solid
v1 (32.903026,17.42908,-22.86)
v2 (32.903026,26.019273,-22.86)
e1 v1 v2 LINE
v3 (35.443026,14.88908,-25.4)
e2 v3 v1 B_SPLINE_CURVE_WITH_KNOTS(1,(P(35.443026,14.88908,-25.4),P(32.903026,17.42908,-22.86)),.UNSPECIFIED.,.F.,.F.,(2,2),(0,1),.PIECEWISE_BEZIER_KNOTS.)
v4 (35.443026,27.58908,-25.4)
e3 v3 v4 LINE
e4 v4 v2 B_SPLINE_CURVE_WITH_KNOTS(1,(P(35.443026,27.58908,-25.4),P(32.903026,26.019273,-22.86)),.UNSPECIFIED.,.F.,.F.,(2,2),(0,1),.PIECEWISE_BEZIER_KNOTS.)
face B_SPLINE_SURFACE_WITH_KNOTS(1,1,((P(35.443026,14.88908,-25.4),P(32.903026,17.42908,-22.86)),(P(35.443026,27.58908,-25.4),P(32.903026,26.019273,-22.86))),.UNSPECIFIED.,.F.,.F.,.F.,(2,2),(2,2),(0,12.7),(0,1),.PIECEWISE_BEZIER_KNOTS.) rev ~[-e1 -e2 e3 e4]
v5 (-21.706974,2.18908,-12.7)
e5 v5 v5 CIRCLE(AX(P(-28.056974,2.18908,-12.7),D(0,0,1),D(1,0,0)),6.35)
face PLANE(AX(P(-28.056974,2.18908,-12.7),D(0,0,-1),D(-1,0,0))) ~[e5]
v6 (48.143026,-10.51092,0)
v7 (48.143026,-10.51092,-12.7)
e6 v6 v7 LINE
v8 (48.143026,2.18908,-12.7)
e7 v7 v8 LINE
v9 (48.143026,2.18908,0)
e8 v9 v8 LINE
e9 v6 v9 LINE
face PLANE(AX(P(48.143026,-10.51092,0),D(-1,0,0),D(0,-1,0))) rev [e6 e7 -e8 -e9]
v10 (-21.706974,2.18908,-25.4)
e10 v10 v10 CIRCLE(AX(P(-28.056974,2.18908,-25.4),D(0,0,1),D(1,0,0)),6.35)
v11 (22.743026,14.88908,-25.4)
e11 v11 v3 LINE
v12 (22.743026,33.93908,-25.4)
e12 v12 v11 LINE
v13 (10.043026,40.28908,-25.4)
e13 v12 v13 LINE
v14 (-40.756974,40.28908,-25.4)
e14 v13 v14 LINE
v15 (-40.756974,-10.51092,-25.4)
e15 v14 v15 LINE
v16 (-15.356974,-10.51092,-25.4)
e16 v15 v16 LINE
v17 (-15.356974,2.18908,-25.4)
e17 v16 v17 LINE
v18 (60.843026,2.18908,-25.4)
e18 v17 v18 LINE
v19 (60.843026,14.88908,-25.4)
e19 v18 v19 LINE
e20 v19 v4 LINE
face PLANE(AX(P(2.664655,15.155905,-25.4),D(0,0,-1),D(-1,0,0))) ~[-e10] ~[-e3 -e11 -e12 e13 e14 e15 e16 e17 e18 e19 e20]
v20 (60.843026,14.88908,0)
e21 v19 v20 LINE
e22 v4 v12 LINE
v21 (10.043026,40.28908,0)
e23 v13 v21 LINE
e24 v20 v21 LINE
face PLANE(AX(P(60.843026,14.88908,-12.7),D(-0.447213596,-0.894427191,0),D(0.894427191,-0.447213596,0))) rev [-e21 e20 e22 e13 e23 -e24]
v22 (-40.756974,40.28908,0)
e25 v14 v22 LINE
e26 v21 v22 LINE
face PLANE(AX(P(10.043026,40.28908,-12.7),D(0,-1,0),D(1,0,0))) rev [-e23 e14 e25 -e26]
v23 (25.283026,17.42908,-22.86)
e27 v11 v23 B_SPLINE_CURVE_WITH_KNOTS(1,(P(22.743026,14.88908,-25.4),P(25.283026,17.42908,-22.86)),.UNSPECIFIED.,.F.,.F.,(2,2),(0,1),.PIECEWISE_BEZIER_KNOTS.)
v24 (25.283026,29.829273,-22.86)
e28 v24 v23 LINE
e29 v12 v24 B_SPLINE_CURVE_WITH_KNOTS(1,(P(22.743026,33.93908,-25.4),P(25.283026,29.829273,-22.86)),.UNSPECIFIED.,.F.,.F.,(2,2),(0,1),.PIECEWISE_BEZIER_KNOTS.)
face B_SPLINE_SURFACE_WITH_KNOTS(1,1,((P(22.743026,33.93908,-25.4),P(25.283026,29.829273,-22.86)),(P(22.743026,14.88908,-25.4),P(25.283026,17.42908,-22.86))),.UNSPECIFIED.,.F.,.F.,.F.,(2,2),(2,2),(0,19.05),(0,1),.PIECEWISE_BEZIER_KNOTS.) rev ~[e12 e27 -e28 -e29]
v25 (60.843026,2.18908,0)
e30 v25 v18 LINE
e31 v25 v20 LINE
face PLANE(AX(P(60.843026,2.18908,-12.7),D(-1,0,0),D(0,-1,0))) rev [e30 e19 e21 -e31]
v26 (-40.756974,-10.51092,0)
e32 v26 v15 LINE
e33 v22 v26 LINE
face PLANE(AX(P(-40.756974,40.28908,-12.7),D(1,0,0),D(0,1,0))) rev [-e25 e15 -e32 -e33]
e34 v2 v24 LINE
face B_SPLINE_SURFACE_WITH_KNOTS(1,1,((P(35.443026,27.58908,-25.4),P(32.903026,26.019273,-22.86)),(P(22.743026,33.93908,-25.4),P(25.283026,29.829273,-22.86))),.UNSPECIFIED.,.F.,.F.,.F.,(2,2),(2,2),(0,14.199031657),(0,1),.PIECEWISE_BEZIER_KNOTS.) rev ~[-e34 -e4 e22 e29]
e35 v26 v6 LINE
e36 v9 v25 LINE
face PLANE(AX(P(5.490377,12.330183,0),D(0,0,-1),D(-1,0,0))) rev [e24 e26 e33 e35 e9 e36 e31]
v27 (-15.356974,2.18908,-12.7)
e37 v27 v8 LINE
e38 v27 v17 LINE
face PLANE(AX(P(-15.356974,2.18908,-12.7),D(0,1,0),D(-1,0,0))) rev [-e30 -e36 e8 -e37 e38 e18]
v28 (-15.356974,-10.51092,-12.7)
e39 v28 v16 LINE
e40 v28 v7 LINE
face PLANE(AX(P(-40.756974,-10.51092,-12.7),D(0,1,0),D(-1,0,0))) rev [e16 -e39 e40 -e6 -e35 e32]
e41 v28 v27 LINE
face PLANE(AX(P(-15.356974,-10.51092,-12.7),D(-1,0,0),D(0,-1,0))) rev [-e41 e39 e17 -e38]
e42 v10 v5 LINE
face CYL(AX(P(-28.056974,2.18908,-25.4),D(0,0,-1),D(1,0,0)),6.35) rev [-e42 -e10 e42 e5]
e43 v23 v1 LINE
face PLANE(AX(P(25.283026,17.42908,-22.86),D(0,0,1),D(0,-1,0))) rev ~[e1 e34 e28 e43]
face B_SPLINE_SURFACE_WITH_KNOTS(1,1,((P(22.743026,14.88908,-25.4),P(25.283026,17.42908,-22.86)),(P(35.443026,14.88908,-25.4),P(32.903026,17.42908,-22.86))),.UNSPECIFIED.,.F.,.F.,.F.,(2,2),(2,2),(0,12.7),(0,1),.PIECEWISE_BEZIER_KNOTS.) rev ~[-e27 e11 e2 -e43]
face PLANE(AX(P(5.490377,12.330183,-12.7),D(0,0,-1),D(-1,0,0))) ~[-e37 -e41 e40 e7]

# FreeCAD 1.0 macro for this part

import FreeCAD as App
import Part
import Sketcher
Q = App.Units.Quantity

doc = App.newDocument("Part")
body = doc.addObject("PartDesign::Body", "Body")

sketch1 = body.newObject("Sketcher::SketchObject", "Sketch")
sketch1.AttachmentSupport = (doc.getObject("XY_Plane"), [""])
sketch1.MapMode = "FlatFace"
sketch1.addGeometry([
    Part.LineSegment(App.Vector(-41, 40, 0), App.Vector(-41, -11, 0)),
    Part.LineSegment(App.Vector(-41, -11, 0), App.Vector(48, -11, 0)),
    Part.LineSegment(App.Vector(48, -11, 0), App.Vector(48, 2, 0)),
    Part.LineSegment(App.Vector(48, 2, 0), App.Vector(61, 2, 0)),
    Part.LineSegment(App.Vector(61, 2, 0), App.Vector(61, 15, 0)),
    Part.LineSegment(App.Vector(61, 15, 0), App.Vector(10, 40, 0)),
    Part.LineSegment(App.Vector(10, 40, 0), App.Vector(-41, 40, 0)),
], False)
sketch1.addConstraint([
    Sketcher.Constraint("Coincident", 0, 2, 1, 1),
    Sketcher.Constraint("Coincident", 1, 2, 2, 1),
    Sketcher.Constraint("Coincident", 2, 2, 3, 1),
    Sketcher.Constraint("Coincident", 3, 2, 4, 1),
    Sketcher.Constraint("Coincident", 4, 2, 5, 1),
    Sketcher.Constraint("Coincident", 5, 2, 6, 1),
    Sketcher.Constraint("Coincident", 6, 2, 0, 1),
    Sketcher.Constraint("Vertical", 0),
    Sketcher.Constraint("Horizontal", 1),
    Sketcher.Constraint("Vertical", 2),
    Sketcher.Constraint("Horizontal", 3),
    Sketcher.Constraint("Vertical", 4),
    Sketcher.Constraint("Horizontal", 6),
    Sketcher.Constraint("Equal", 6, 0),
    Sketcher.Constraint("Equal", 3, 2),
    Sketcher.Constraint("Equal", 2, 4),
    Sketcher.Constraint("DistanceX", 6, 2, 6, 1, Q("2 in")),
    Sketcher.Constraint("DistanceX", 1, 1, 1, 2, Q("3.5 in")),
    Sketcher.Constraint("DistanceX", 3, 1, 3, 2, Q("0.5 in")),
    Sketcher.Constraint("DistanceY", 0, 2, -1, 1, 10.51092),
    Sketcher.Constraint("DistanceX", 0, 2, -1, 1, 40.756974),
])
pad1 = body.newObject("PartDesign::Pad", "Pad")
pad1.Profile = sketch1
pad1.Length = Q("0.5 in")

sketch2 = body.newObject("Sketcher::SketchObject", "Sketch001")
sketch2.AttachmentSupport = (doc.getObject("XY_Plane"), [""])
sketch2.MapMode = "FlatFace"
sketch2.AttachmentOffset = App.Placement(App.Vector(0, 0, 0.5 * 25.4), App.Rotation())
sketch2.addGeometry([
    Part.LineSegment(App.Vector(-41, 40, 0), App.Vector(-41, -11, 0)),
    Part.LineSegment(App.Vector(-41, -11, 0), App.Vector(-15, -11, 0)),
    Part.LineSegment(App.Vector(-15, -11, 0), App.Vector(-15, 2, 0)),
    Part.LineSegment(App.Vector(-15, 2, 0), App.Vector(61, 2, 0)),
    Part.LineSegment(App.Vector(61, 2, 0), App.Vector(61, 15, 0)),
    Part.LineSegment(App.Vector(61, 15, 0), App.Vector(10, 40, 0)),
    Part.LineSegment(App.Vector(10, 40, 0), App.Vector(-41, 40, 0)),
], False)
sketch2.addConstraint([
    Sketcher.Constraint("Coincident", 0, 2, 1, 1),
    Sketcher.Constraint("Coincident", 1, 2, 2, 1),
    Sketcher.Constraint("Coincident", 2, 2, 3, 1),
    Sketcher.Constraint("Coincident", 3, 2, 4, 1),
    Sketcher.Constraint("Coincident", 4, 2, 5, 1),
    Sketcher.Constraint("Coincident", 5, 2, 6, 1),
    Sketcher.Constraint("Coincident", 6, 2, 0, 1),
    Sketcher.Constraint("Vertical", 0),
    Sketcher.Constraint("Horizontal", 1),
    Sketcher.Constraint("Vertical", 2),
    Sketcher.Constraint("Horizontal", 3),
    Sketcher.Constraint("Vertical", 4),
    Sketcher.Constraint("Horizontal", 6),
    Sketcher.Constraint("Equal", 6, 0),
    Sketcher.Constraint("Equal", 2, 4),
    Sketcher.Constraint("DistanceX", 1, 1, 1, 2, Q("1 in")),
    Sketcher.Constraint("DistanceX", 3, 1, 3, 2, Q("3 in")),
    Sketcher.Constraint("DistanceX", 6, 2, 6, 1, Q("2 in")),
    Sketcher.Constraint("DistanceY", 2, 1, 2, 2, Q("0.5 in")),
    Sketcher.Constraint("DistanceY", 0, 2, -1, 1, 10.51092),
    Sketcher.Constraint("DistanceX", 0, 2, -1, 1, 40.756974),
])
pad2 = body.newObject("PartDesign::Pad", "Pad001")
pad2.Profile = sketch2
pad2.Length = Q("0.5 in")

sketch3 = body.newObject("Sketcher::SketchObject", "Sketch002")
sketch3.AttachmentSupport = (doc.getObject("XY_Plane"), [""])
sketch3.MapMode = "FlatFace"
sketch3.AttachmentOffset = App.Placement(App.Vector(0, 0, 1 * 25.4), App.Rotation())
sketch3.addGeometry(Part.Circle(App.Vector(-28, 2, 0), App.Vector(0, 0, 1), 6), False)
sketch3.addConstraint([
    Sketcher.Constraint("Diameter", 0, Q("0.5 in")),
    Sketcher.Constraint("DistanceY", -1, 1, 0, 3, 2.18908),
    Sketcher.Constraint("DistanceX", 0, 3, -1, 1, 28.056974),
])
pocket1 = body.newObject("PartDesign::Pocket", "Pocket")
pocket1.Profile = sketch3
pocket1.Length = Q("0.5 in")

sketch4 = body.newObject("Sketcher::SketchObject", "Sketch003")
sketch4.AttachmentSupport = (doc.getObject("XY_Plane"), [""])
sketch4.MapMode = "FlatFace"
sketch4.AttachmentOffset = App.Placement(App.Vector(0, 0, 1 * 25.4), App.Rotation())
sketch4.addGeometry([
    Part.LineSegment(App.Vector(23, 15, 0), App.Vector(35, 15, 0)),
    Part.LineSegment(App.Vector(35, 15, 0), App.Vector(35, 28, 0)),
    Part.LineSegment(App.Vector(35, 28, 0), App.Vector(23, 34, 0)),
    Part.LineSegment(App.Vector(23, 34, 0), App.Vector(23, 15, 0)),
], False)
sketch4.addConstraint([
    Sketcher.Constraint("Coincident", 0, 2, 1, 1),
    Sketcher.Constraint("Coincident", 1, 2, 2, 1),
    Sketcher.Constraint("Coincident", 2, 2, 3, 1),
    Sketcher.Constraint("Coincident", 3, 2, 0, 1),
    Sketcher.Constraint("Horizontal", 0),
    Sketcher.Constraint("Vertical", 1),
    Sketcher.Constraint("Vertical", 3),
    Sketcher.Constraint("Equal", 0, 1),
    Sketcher.Constraint("DistanceX", 0, 1, 0, 2, Q("0.5 in")),
    Sketcher.Constraint("DistanceY", 3, 2, 3, 1, Q("0.75 in")),
    Sketcher.Constraint("DistanceY", -1, 1, 0, 2, 14.88908),
    Sketcher.Constraint("DistanceX", -1, 1, 0, 2, 35.443026),
])
pocket2 = body.newObject("PartDesign::Pocket", "Pocket001")
pocket2.Profile = sketch4
pocket2.Length = Q("0.1 in")
pocket2.TaperAngle = -45
body2 = doc.addObject("PartDesign::Body", "Body001")
doc.recompute()

mirroring = doc.addObject("Part::Mirroring", "Mirroring")
mirroring.Source = body
mirroring.Base = App.Vector(3.379445, 13.085993, 0)
mirroring.Normal = App.Vector(0, 0, -1)
body2.BaseFeature = mirroring
doc.recompute()
body.Visibility = False
mirroring.Visibility = False

doc.recompute()
